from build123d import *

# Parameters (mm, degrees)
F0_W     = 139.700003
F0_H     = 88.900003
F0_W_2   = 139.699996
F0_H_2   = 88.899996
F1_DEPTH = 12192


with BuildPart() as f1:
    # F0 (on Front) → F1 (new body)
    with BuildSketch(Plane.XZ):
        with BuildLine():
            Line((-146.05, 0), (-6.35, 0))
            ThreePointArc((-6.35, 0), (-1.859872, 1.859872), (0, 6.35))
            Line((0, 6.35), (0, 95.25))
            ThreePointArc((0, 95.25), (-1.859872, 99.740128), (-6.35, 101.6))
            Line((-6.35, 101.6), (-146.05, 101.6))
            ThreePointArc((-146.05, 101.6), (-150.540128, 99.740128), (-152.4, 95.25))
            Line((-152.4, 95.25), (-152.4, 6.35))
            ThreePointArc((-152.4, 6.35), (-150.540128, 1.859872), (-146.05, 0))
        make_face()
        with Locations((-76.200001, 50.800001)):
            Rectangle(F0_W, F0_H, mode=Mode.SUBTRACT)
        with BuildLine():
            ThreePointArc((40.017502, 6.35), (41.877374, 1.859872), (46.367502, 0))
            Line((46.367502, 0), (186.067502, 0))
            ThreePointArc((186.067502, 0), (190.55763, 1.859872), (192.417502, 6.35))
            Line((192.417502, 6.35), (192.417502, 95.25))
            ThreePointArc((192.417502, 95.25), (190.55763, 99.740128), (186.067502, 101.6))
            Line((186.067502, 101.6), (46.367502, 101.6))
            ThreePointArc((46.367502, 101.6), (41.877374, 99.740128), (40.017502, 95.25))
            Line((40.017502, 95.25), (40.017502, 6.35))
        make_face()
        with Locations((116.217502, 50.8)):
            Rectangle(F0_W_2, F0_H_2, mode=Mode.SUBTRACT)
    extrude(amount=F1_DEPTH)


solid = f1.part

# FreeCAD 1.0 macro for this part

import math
import FreeCAD as App
import Part
import Sketcher
Q = App.Units.Quantity


def add_polygon(sketch, points):
    """Adds a closed chain of lines whose ends are joined by coincident constraints."""
    first, n = sketch.GeometryCount, len(points)
    for a, b in zip(points, points[1:] + points[:1]):
        sketch.addGeometry(Part.LineSegment(App.Vector(*a, 0), App.Vector(*b, 0)), False)
    for i in range(n):
        sketch.addConstraint(Sketcher.Constraint("Coincident", first + i, 2, first + (i + 1) % n, 1))

doc = App.newDocument("Part")
params = doc.addObject("Spreadsheet::Sheet", "Params")
for row, (alias, value) in enumerate([
    ("sketch1_radius", "0.25 in"),
    ("sketch1_width", "5.5 in"),
    ("sketch1_height", "3.5 in"),
    ("pad1_length", "480 in"),
], start=1):
    params.set(f"A{row}", alias)
    params.set(f"B{row}", "=" + value)
    params.setAlias(f"B{row}", alias)

body = doc.addObject("PartDesign::Body", "Body")
body.AllowCompound = True

sketch1 = body.newObject("Sketcher::SketchObject", "Sketch")
sketch1.AttachmentSupport = (doc.getObject("XZ_Plane"), [""])
sketch1.MapMode = "FlatFace"
sketch1.addGeometry(Part.LineSegment(App.Vector(-146, 0, 0), App.Vector(-6, 0, 0)), False)
sketch1.addGeometry(Part.ArcOfCircle(Part.Circle(App.Vector(-6, 6, 0), App.Vector(0, 0, 1), 6), math.radians(-90), math.radians(0)), False)
sketch1.addGeometry(Part.LineSegment(App.Vector(0, 6, 0), App.Vector(0, 95, 0)), False)
sketch1.addGeometry(Part.ArcOfCircle(Part.Circle(App.Vector(-6, 95, 0), App.Vector(0, 0, 1), 6), math.radians(0), math.radians(90)), False)
sketch1.addGeometry(Part.LineSegment(App.Vector(-6, 102, 0), App.Vector(-146, 102, 0)), False)
sketch1.addGeometry(Part.ArcOfCircle(Part.Circle(App.Vector(-146, 95, 0), App.Vector(0, 0, 1), 6), math.radians(90), math.radians(180)), False)
sketch1.addGeometry(Part.LineSegment(App.Vector(-152, 95, 0), App.Vector(-152, 6, 0)), False)
sketch1.addGeometry(Part.ArcOfCircle(Part.Circle(App.Vector(-146, 6, 0), App.Vector(0, 0, 1), 6), math.radians(-180), math.radians(-90)), False)
add_polygon(sketch1, [(-6, 6), (-146, 6), (-146, 95), (-6, 95)])
sketch1.addGeometry(Part.ArcOfCircle(Part.Circle(App.Vector(46, 6, 0), App.Vector(0, 0, 1), 6), math.radians(-180), math.radians(-90)), False)
sketch1.addGeometry(Part.LineSegment(App.Vector(46, 0, 0), App.Vector(186, 0, 0)), False)
sketch1.addGeometry(Part.ArcOfCircle(Part.Circle(App.Vector(186, 6, 0), App.Vector(0, 0, 1), 6), math.radians(-90), math.radians(0)), False)
sketch1.addGeometry(Part.LineSegment(App.Vector(192, 6, 0), App.Vector(192, 95, 0)), False)
sketch1.addGeometry(Part.ArcOfCircle(Part.Circle(App.Vector(186, 95, 0), App.Vector(0, 0, 1), 6), math.radians(0), math.radians(90)), False)
sketch1.addGeometry(Part.LineSegment(App.Vector(186, 102, 0), App.Vector(46, 102, 0)), False)
sketch1.addGeometry(Part.ArcOfCircle(Part.Circle(App.Vector(46, 95, 0), App.Vector(0, 0, 1), 6), math.radians(90), math.radians(180)), False)
sketch1.addGeometry(Part.LineSegment(App.Vector(40, 95, 0), App.Vector(40, 6, 0)), False)
add_polygon(sketch1, [(186, 6), (46, 6), (46, 95), (186, 95)])
sketch1.addConstraint([
    Sketcher.Constraint("Tangent", 0, 2, 1, 1),
    Sketcher.Constraint("Tangent", 1, 2, 2, 1),
    Sketcher.Constraint("Tangent", 2, 2, 3, 1),
    Sketcher.Constraint("Tangent", 3, 2, 4, 1),
    Sketcher.Constraint("Tangent", 4, 2, 5, 1),
    Sketcher.Constraint("Tangent", 5, 2, 6, 1),
    Sketcher.Constraint("Tangent", 6, 2, 7, 1),
    Sketcher.Constraint("Tangent", 7, 2, 0, 1),
    Sketcher.Constraint("Tangent", 12, 2, 13, 1),
    Sketcher.Constraint("Tangent", 13, 2, 14, 1),
    Sketcher.Constraint("Tangent", 14, 2, 15, 1),
    Sketcher.Constraint("Tangent", 15, 2, 16, 1),
    Sketcher.Constraint("Tangent", 16, 2, 17, 1),
    Sketcher.Constraint("Tangent", 17, 2, 18, 1),
    Sketcher.Constraint("Tangent", 18, 2, 19, 1),
    Sketcher.Constraint("Tangent", 19, 2, 12, 1),
    Sketcher.Constraint("Horizontal", 0),
    Sketcher.Constraint("Vertical", 2),
    Sketcher.Constraint("Horizontal", 4),
    Sketcher.Constraint("Vertical", 6),
    Sketcher.Constraint("Horizontal", 8),
    Sketcher.Constraint("Vertical", 9),
    Sketcher.Constraint("Horizontal", 10),
    Sketcher.Constraint("Vertical", 11),
    Sketcher.Constraint("Horizontal", 13),
    Sketcher.Constraint("Vertical", 15),
    Sketcher.Constraint("Horizontal", 17),
    Sketcher.Constraint("Vertical", 19),
    Sketcher.Constraint("Horizontal", 20),
    Sketcher.Constraint("Vertical", 21),
    Sketcher.Constraint("Horizontal", 22),
    Sketcher.Constraint("Vertical", 23),
    Sketcher.Constraint("Coincident", 8, 2, 7, 3),
    Sketcher.Constraint("Coincident", 9, 2, 5, 3),
    Sketcher.Constraint("Coincident", 10, 2, 3, 3),
    Sketcher.Constraint("Coincident", 20, 2, 12, 3),
    Sketcher.Constraint("Coincident", 21, 2, 18, 3),
    Sketcher.Constraint("Coincident", 22, 2, 16, 3),
    Sketcher.Constraint("Equal", 1, 3),
    Sketcher.Constraint("Equal", 7, 12),
    Sketcher.Constraint("Equal", 12, 14),
    Sketcher.Constraint("PointOnObject", 0, 2, -1),
    Sketcher.Constraint("PointOnObject", 1, 2, -2),
    Sketcher.Constraint("PointOnObject", 12, 2, -1),
    Sketcher.Constraint("Horizontal", 5, 3, 16, 3),
    Sketcher.Constraint("Equal", 4, 13),
    Sketcher.Constraint("Radius", 1, Q("0.25 in")),
    Sketcher.Constraint("DistanceX", 0, 1, 0, 2, Q("5.5 in")),
    Sketcher.Constraint("DistanceY", 2, 1, 2, 2, Q("3.5 in")),
    Sketcher.Constraint("DistanceX", -1, 1, 14, 3, 186.067502),
])
sketch1.setExpression("Constraints[54]", "Params.sketch1_radius")
sketch1.setExpression("Constraints[55]", "Params.sketch1_width")
sketch1.setExpression("Constraints[56]", "Params.sketch1_height")
pad1 = body.newObject("PartDesign::Pad", "Pad")
pad1.Profile = sketch1
pad1.setExpression("Length", "Params.pad1_length")

doc.recompute()
